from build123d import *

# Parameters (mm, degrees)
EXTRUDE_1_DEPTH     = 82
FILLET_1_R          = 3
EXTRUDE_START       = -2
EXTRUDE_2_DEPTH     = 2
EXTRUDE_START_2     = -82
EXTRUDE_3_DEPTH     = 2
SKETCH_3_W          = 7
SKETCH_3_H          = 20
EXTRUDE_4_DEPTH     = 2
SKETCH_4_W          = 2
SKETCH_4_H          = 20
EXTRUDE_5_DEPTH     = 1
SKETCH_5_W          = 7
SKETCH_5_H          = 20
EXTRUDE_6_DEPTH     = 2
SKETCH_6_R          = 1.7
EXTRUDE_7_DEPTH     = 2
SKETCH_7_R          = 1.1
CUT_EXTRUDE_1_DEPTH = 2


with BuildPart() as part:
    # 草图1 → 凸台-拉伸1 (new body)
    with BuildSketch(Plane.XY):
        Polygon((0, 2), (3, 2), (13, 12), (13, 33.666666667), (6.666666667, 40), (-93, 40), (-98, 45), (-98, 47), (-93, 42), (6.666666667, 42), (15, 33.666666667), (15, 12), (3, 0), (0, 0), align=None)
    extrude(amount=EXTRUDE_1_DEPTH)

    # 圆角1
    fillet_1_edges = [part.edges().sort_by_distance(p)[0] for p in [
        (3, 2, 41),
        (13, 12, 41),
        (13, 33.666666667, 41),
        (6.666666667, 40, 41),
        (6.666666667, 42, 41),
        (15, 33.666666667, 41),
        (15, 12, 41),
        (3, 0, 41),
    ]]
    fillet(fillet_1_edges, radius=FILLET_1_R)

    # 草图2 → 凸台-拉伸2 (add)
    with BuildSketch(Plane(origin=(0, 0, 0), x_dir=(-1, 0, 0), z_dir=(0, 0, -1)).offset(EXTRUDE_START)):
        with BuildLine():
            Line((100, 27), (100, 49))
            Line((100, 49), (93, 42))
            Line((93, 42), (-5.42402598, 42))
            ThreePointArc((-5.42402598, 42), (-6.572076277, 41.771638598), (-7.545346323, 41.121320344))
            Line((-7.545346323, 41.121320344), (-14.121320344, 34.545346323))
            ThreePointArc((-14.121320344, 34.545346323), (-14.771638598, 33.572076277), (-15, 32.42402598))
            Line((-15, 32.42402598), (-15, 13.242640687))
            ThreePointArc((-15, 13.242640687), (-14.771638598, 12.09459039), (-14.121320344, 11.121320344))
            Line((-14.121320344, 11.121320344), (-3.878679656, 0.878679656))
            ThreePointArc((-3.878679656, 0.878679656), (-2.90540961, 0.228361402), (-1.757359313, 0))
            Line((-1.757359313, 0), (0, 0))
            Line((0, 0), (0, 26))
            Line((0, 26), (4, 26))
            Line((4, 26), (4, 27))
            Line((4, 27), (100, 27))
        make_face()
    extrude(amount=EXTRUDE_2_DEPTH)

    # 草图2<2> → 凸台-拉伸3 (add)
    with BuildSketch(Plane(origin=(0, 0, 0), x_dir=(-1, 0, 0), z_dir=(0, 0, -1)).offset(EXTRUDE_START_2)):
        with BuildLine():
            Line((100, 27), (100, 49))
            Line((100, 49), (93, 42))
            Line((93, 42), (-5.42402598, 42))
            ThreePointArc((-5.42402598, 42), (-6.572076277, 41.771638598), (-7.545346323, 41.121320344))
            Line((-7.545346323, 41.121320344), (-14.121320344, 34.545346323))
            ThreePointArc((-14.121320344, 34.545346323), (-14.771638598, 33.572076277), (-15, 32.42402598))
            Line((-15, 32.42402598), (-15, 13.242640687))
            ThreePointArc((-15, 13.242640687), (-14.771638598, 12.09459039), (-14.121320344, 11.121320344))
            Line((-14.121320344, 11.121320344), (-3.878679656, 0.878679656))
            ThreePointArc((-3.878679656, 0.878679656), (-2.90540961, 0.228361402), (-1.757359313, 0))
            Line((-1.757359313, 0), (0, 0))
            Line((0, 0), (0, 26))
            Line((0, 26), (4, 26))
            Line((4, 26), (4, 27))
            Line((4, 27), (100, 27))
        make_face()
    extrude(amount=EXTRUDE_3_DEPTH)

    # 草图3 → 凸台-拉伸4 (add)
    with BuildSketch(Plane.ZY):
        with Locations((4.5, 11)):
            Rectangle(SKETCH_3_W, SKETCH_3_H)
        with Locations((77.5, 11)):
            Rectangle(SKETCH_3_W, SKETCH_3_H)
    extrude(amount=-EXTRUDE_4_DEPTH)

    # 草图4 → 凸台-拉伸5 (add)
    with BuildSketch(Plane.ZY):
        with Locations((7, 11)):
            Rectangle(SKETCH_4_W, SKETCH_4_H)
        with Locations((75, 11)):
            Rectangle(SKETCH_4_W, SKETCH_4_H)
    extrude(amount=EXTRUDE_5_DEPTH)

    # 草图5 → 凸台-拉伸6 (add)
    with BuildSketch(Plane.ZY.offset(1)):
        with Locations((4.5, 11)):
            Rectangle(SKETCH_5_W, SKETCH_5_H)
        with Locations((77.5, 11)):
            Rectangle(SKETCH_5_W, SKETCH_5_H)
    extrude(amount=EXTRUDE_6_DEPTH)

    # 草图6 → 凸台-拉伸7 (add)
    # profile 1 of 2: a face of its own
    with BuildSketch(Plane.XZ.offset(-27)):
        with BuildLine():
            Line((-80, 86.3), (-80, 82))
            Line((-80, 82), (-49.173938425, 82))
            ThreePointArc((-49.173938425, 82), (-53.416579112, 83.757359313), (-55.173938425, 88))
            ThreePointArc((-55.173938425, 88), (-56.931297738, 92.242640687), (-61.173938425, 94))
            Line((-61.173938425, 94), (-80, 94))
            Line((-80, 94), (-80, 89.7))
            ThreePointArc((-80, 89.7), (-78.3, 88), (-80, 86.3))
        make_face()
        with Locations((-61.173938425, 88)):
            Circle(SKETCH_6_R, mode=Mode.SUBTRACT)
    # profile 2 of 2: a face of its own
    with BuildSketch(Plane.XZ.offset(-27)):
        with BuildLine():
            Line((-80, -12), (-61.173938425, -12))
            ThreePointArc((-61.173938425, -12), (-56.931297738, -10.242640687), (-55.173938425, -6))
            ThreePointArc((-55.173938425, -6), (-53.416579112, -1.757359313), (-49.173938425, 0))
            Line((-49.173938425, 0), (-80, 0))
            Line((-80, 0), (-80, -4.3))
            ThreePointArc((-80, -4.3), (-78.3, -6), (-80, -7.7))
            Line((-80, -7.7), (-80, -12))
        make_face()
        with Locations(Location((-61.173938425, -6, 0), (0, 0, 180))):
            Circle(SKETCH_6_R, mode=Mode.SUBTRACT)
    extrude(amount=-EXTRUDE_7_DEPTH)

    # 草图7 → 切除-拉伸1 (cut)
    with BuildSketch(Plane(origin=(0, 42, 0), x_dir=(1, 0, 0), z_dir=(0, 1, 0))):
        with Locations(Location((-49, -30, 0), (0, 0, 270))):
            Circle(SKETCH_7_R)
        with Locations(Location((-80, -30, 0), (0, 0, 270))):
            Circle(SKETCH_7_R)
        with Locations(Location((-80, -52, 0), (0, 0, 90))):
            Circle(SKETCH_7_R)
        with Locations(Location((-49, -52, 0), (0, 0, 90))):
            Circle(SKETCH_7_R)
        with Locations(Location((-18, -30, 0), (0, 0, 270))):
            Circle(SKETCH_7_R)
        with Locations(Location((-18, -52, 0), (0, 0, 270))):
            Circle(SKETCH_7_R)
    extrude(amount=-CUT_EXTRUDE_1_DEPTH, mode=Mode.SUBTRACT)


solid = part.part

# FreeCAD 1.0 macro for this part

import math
import FreeCAD as App
import Part
import Sketcher
from FreeCAD import Vector
Q = App.Units.Quantity


def edges_at(feature, points):
    """Names of the edges that pass closest to the given points."""
    edges = feature.Shape.Edges
    near = lambda p: min(range(len(edges)), key=lambda i: edges[i].distToShape(Part.Vertex(*p))[0])
    return sorted({f"Edge{near(p) + 1}" for p in points})


def add_polygon(sketch, points):
    """Adds a closed chain of lines whose ends are joined by coincident constraints."""
    first, n = sketch.GeometryCount, len(points)
    for a, b in zip(points, points[1:] + points[:1]):
        sketch.addGeometry(Part.LineSegment(App.Vector(*a, 0), App.Vector(*b, 0)), False)
    for i in range(n):
        sketch.addConstraint(Sketcher.Constraint("Coincident", first + i, 2, first + (i + 1) % n, 1))

doc = App.newDocument("Part")
body = doc.addObject("PartDesign::Body", "Body")

# Sketch on XY plane
sketch1 = body.newObject("Sketcher::SketchObject", "Sketch")
sketch1.AttachmentSupport = (doc.getObject("XY_Plane"), [""])
sketch1.MapMode = "FlatFace"
add_polygon(sketch1, [(3, 2), (0, 2), (0, 0), (3, 0), (15, 12), (15, 33.7), (6.7, 42), (-93, 42), (-98, 47), (-98, 45), (-93, 40), (6.7, 40), (13, 33.7), (13, 12)])  # lines 0-13
sketch1.addConstraint([
    Sketcher.Constraint("Horizontal", 0),
    Sketcher.Constraint("Vertical", 1),
    Sketcher.Constraint("Horizontal", 2),
    Sketcher.Constraint("Vertical", 4),
    Sketcher.Constraint("Horizontal", 6),
    Sketcher.Constraint("Vertical", 8),
    Sketcher.Constraint("Horizontal", 10),
    Sketcher.Constraint("Vertical", 12),
    Sketcher.Constraint("Coincident", 1, 2, -1, 1),
    Sketcher.Constraint("Perpendicular", 3, 5),
    Sketcher.Constraint("Parallel", 5, 7),
    Sketcher.Constraint("Parallel", 7, 9),
    Sketcher.Constraint("Parallel", 9, 11),
    Sketcher.Constraint("Perpendicular", 11, 13),
    Sketcher.Constraint("Horizontal", 4, 2, 11, 2),
    Sketcher.Constraint("Horizontal", 3, 2, 12, 2),
    Sketcher.Constraint("Vertical", 6, 2, 9, 2),
    Sketcher.Constraint("Vertical", 5, 2, 10, 2),
    Sketcher.Constraint("Vertical", 2, 2, 13, 2),
    Sketcher.Constraint("Equal", 1, 8),
    Sketcher.Constraint("DistanceX", 0, 2, 0, 1, Q("3 mm")),
    Sketcher.Constraint("DistanceY", 1, 2, 1, 1, Q("2 mm")),
    Sketcher.Constraint("DistanceX", -1, 1, 3, 2, Q("15 mm")),
    Sketcher.Constraint("DistanceY", -1, 1, 5, 2, Q("42 mm")),
    Sketcher.Constraint("DistanceX", 6, 2, -1, 1, Q("93 mm")),
    Sketcher.Constraint("DistanceX", 7, 2, -1, 1, Q("98 mm")),
    Sketcher.Constraint("DistanceX", 6, 2, 6, 1, Q("99.666667 mm")),
])
pad1 = body.newObject("PartDesign::Pad", "Pad")
pad1.Profile = sketch1
pad1.Length = 82
doc.recompute()

fillet = body.newObject("PartDesign::Fillet", "Fillet")
fillet.Base = (pad1, edges_at(pad1, [
    (3, 2, 41),
    (13, 12, 41),
    (13, 33.667, 41),
    (6.667, 40, 41),
    (6.667, 42, 41),
    (15, 33.667, 41),
    (15, 12, 41),
    (3, 0, 41),
]))
fillet.Radius = 3

# Sketch on XY plane
sketch2 = body.newObject("Sketcher::SketchObject", "Sketch001")
sketch2.AttachmentSupport = (doc.getObject("XY_Plane"), [""])
sketch2.MapMode = "FlatFace"
sketch2.AttachmentOffset = App.Placement(Vector(0, 0, 2), App.Rotation())
sketch2.addGeometry([
    Part.LineSegment(Vector(-100, 27, 0), Vector(-100, 49, 0)),  # 0
    Part.LineSegment(Vector(-100, 49, 0), Vector(-93, 42, 0)),  # 1
    Part.LineSegment(Vector(-93, 42, 0), Vector(5.4, 42, 0)),  # 2
    Part.ArcOfCircle(Part.Circle(Vector(5.4, 39, 0), Vector(0, 0, 1), 3), math.radians(45), math.radians(90)),  # 3
    Part.LineSegment(Vector(7.5, 41.1, 0), Vector(14.1, 34.5, 0)),  # 4
    Part.ArcOfCircle(Part.Circle(Vector(12, 32.4, 0), Vector(0, 0, 1), 3), math.radians(0), math.radians(45)),  # 5
    Part.LineSegment(Vector(15, 32.4, 0), Vector(15, 13.2, 0)),  # 6
    Part.ArcOfCircle(Part.Circle(Vector(12, 13.2, 0), Vector(0, 0, 1), 3), math.radians(-45), math.radians(0)),  # 7
    Part.LineSegment(Vector(14.1, 11.1, 0), Vector(3.9, 0.9, 0)),  # 8
    Part.ArcOfCircle(Part.Circle(Vector(1.8, 3, 0), Vector(0, 0, 1), 3), math.radians(-90), math.radians(-45)),  # 9
    Part.LineSegment(Vector(1.8, 0, 0), Vector(0, 0, 0)),  # 10
    Part.LineSegment(Vector(0, 0, 0), Vector(0, 26, 0)),  # 11
    Part.LineSegment(Vector(0, 26, 0), Vector(-4, 26, 0)),  # 12
    Part.LineSegment(Vector(-4, 26, 0), Vector(-4, 27, 0)),  # 13
    Part.LineSegment(Vector(-4, 27, 0), Vector(-100, 27, 0)),  # 14
], False)
sketch2.addConstraint([
    Sketcher.Constraint("Coincident", 0, 2, 1, 1),
    Sketcher.Constraint("Coincident", 1, 2, 2, 1),
    Sketcher.Constraint("Tangent", 2, 2, 3, 2),
    Sketcher.Constraint("Tangent", 3, 1, 4, 1),
    Sketcher.Constraint("Tangent", 4, 2, 5, 2),
    Sketcher.Constraint("Tangent", 5, 1, 6, 1),
    Sketcher.Constraint("Tangent", 6, 2, 7, 2),
    Sketcher.Constraint("Tangent", 7, 1, 8, 1),
    Sketcher.Constraint("Tangent", 8, 2, 9, 2),
    Sketcher.Constraint("Tangent", 9, 1, 10, 1),
    Sketcher.Constraint("Coincident", 10, 2, 11, 1),
    Sketcher.Constraint("Coincident", 11, 2, 12, 1),
    Sketcher.Constraint("Coincident", 12, 2, 13, 1),
    Sketcher.Constraint("Coincident", 13, 2, 14, 1),
    Sketcher.Constraint("Coincident", 14, 2, 0, 1),
    Sketcher.Constraint("Vertical", 0),
    Sketcher.Constraint("Horizontal", 2),
    Sketcher.Constraint("Vertical", 6),
    Sketcher.Constraint("Horizontal", 10),
    Sketcher.Constraint("Vertical", 11),
    Sketcher.Constraint("Horizontal", 12),
    Sketcher.Constraint("Vertical", 13),
    Sketcher.Constraint("Horizontal", 14),
    Sketcher.Constraint("Coincident", 10, 2, -1, 1),
    Sketcher.Constraint("Equal", 3, 5),
    Sketcher.Constraint("Equal", 5, 7),
    Sketcher.Constraint("Equal", 7, 9),
    Sketcher.Constraint("Parallel", 1, 4),
    Sketcher.Constraint("Perpendicular", 4, 8),
    Sketcher.Constraint("Vertical", 4, 2, 7, 1),
    Sketcher.Constraint("Radius", 3, Q("3 mm")),
    Sketcher.Constraint("DistanceX", 12, 2, 12, 1, Q("4 mm")),
    Sketcher.Constraint("DistanceX", 14, 2, 14, 1, Q("96 mm")),
    Sketcher.Constraint("DistanceY", 0, 1, 0, 2, Q("22 mm")),
    Sketcher.Constraint("DistanceY", 11, 1, 11, 2, Q("26 mm")),
    Sketcher.Constraint("DistanceY", 13, 1, 13, 2, Q("1 mm")),
    Sketcher.Constraint("DistanceY", -1, 1, 3, 3, Q("39 mm")),
    Sketcher.Constraint("DistanceX", -1, 1, 5, 3, Q("12 mm")),
    Sketcher.Constraint("DistanceX", 10, 2, 10, 1, Q("1.757359 mm")),
    Sketcher.Constraint("Distance", 4, Q("9.299832 mm")),
])
pad2 = body.newObject("PartDesign::Pad", "Pad001")
pad2.Profile = sketch2
pad2.Length = 2
pad2.Reversed = True

# Sketch on XY plane
sketch3 = body.newObject("Sketcher::SketchObject", "Sketch002")
sketch3.AttachmentSupport = (doc.getObject("XY_Plane"), [""])
sketch3.MapMode = "FlatFace"
sketch3.AttachmentOffset = App.Placement(Vector(0, 0, 82), App.Rotation())
sketch3.addGeometry([
    Part.LineSegment(Vector(-100, 27, 0), Vector(-100, 49, 0)),  # 0
    Part.LineSegment(Vector(-100, 49, 0), Vector(-93, 42, 0)),  # 1
    Part.LineSegment(Vector(-93, 42, 0), Vector(5.4, 42, 0)),  # 2
    Part.ArcOfCircle(Part.Circle(Vector(5.4, 39, 0), Vector(0, 0, 1), 3), math.radians(45), math.radians(90)),  # 3
    Part.LineSegment(Vector(7.5, 41.1, 0), Vector(14.1, 34.5, 0)),  # 4
    Part.ArcOfCircle(Part.Circle(Vector(12, 32.4, 0), Vector(0, 0, 1), 3), math.radians(0), math.radians(45)),  # 5
    Part.LineSegment(Vector(15, 32.4, 0), Vector(15, 13.2, 0)),  # 6
    Part.ArcOfCircle(Part.Circle(Vector(12, 13.2, 0), Vector(0, 0, 1), 3), math.radians(-45), math.radians(0)),  # 7
    Part.LineSegment(Vector(14.1, 11.1, 0), Vector(3.9, 0.9, 0)),  # 8
    Part.ArcOfCircle(Part.Circle(Vector(1.8, 3, 0), Vector(0, 0, 1), 3), math.radians(-90), math.radians(-45)),  # 9
    Part.LineSegment(Vector(1.8, 0, 0), Vector(0, 0, 0)),  # 10
    Part.LineSegment(Vector(0, 0, 0), Vector(0, 26, 0)),  # 11
    Part.LineSegment(Vector(0, 26, 0), Vector(-4, 26, 0)),  # 12
    Part.LineSegment(Vector(-4, 26, 0), Vector(-4, 27, 0)),  # 13
    Part.LineSegment(Vector(-4, 27, 0), Vector(-100, 27, 0)),  # 14
], False)
sketch3.addConstraint([
    Sketcher.Constraint("Coincident", 0, 2, 1, 1),
    Sketcher.Constraint("Coincident", 1, 2, 2, 1),
    Sketcher.Constraint("Tangent", 2, 2, 3, 2),
    Sketcher.Constraint("Tangent", 3, 1, 4, 1),
    Sketcher.Constraint("Tangent", 4, 2, 5, 2),
    Sketcher.Constraint("Tangent", 5, 1, 6, 1),
    Sketcher.Constraint("Tangent", 6, 2, 7, 2),
    Sketcher.Constraint("Tangent", 7, 1, 8, 1),
    Sketcher.Constraint("Tangent", 8, 2, 9, 2),
    Sketcher.Constraint("Tangent", 9, 1, 10, 1),
    Sketcher.Constraint("Coincident", 10, 2, 11, 1),
    Sketcher.Constraint("Coincident", 11, 2, 12, 1),
    Sketcher.Constraint("Coincident", 12, 2, 13, 1),
    Sketcher.Constraint("Coincident", 13, 2, 14, 1),
    Sketcher.Constraint("Coincident", 14, 2, 0, 1),
    Sketcher.Constraint("Vertical", 0),
    Sketcher.Constraint("Horizontal", 2),
    Sketcher.Constraint("Vertical", 6),
    Sketcher.Constraint("Horizontal", 10),
    Sketcher.Constraint("Vertical", 11),
    Sketcher.Constraint("Horizontal", 12),
    Sketcher.Constraint("Vertical", 13),
    Sketcher.Constraint("Horizontal", 14),
    Sketcher.Constraint("Coincident", 10, 2, -1, 1),
    Sketcher.Constraint("Equal", 3, 5),
    Sketcher.Constraint("Equal", 5, 7),
    Sketcher.Constraint("Equal", 7, 9),
    Sketcher.Constraint("Parallel", 1, 4),
    Sketcher.Constraint("Perpendicular", 4, 8),
    Sketcher.Constraint("Vertical", 4, 2, 7, 1),
    Sketcher.Constraint("Radius", 3, Q("3 mm")),
    Sketcher.Constraint("DistanceX", 12, 2, 12, 1, Q("4 mm")),
    Sketcher.Constraint("DistanceX", 14, 2, 14, 1, Q("96 mm")),
    Sketcher.Constraint("DistanceY", 0, 1, 0, 2, Q("22 mm")),
    Sketcher.Constraint("DistanceY", 11, 1, 11, 2, Q("26 mm")),
    Sketcher.Constraint("DistanceY", 13, 1, 13, 2, Q("1 mm")),
    Sketcher.Constraint("DistanceY", -1, 1, 3, 3, Q("39 mm")),
    Sketcher.Constraint("DistanceX", -1, 1, 5, 3, Q("12 mm")),
    Sketcher.Constraint("DistanceX", 10, 2, 10, 1, Q("1.757359 mm")),
    Sketcher.Constraint("Distance", 4, Q("9.299832 mm")),
])
pad3 = body.newObject("PartDesign::Pad", "Pad002")
pad3.Profile = sketch3
pad3.Length = 2
pad3.Reversed = True

# Sketch on YZ plane
sketch4 = body.newObject("Sketcher::SketchObject", "Sketch003")
sketch4.AttachmentSupport = (doc.getObject("YZ_Plane"), [""])
sketch4.MapMode = "FlatFace"
add_polygon(sketch4, [(21, 1), (1, 1), (1, 8), (21, 8)])  # lines 0-3
add_polygon(sketch4, [(21, 74), (1, 74), (1, 81), (21, 81)])  # lines 4-7
sketch4.addConstraint([
    Sketcher.Constraint("Horizontal", 0),
    Sketcher.Constraint("Vertical", 1),
    Sketcher.Constraint("Horizontal", 2),
    Sketcher.Constraint("Vertical", 3),
    Sketcher.Constraint("Horizontal", 4),
    Sketcher.Constraint("Vertical", 5),
    Sketcher.Constraint("Horizontal", 6),
    Sketcher.Constraint("Vertical", 7),
    Sketcher.Constraint("Vertical", 1, 2, 4, 2),
    Sketcher.Constraint("Vertical", 3, 2, 6, 2),
    Sketcher.Constraint("Equal", 3, 5),
    Sketcher.Constraint("DistanceX", 0, 2, 0, 1, Q("20 mm")),
    Sketcher.Constraint("DistanceY", 1, 1, 1, 2, Q("7 mm")),
    Sketcher.Constraint("DistanceX", -1, 1, 0, 2, Q("1 mm")),
    Sketcher.Constraint("DistanceY", -1, 1, 0, 2, Q("1 mm")),
    Sketcher.Constraint("DistanceY", -1, 1, 4, 2, Q("74 mm")),
])
pad4 = body.newObject("PartDesign::Pad", "Pad003")
pad4.Profile = sketch4
pad4.Length = 2

# Sketch on YZ plane
sketch5 = body.newObject("Sketcher::SketchObject", "Sketch004")
sketch5.AttachmentSupport = (doc.getObject("YZ_Plane"), [""])
sketch5.MapMode = "FlatFace"
add_polygon(sketch5, [(21, 6), (1, 6), (1, 8), (21, 8)])  # lines 0-3
add_polygon(sketch5, [(21, 74), (1, 74), (1, 76), (21, 76)])  # lines 4-7
sketch5.addConstraint([
    Sketcher.Constraint("Horizontal", 0),
    Sketcher.Constraint("Vertical", 1),
    Sketcher.Constraint("Horizontal", 2),
    Sketcher.Constraint("Vertical", 3),
    Sketcher.Constraint("Horizontal", 4),
    Sketcher.Constraint("Vertical", 5),
    Sketcher.Constraint("Horizontal", 6),
    Sketcher.Constraint("Vertical", 7),
    Sketcher.Constraint("Vertical", 1, 2, 4, 2),
    Sketcher.Constraint("Vertical", 3, 2, 6, 2),
    Sketcher.Constraint("Equal", 3, 5),
    Sketcher.Constraint("DistanceX", 0, 2, 0, 1, Q("20 mm")),
    Sketcher.Constraint("DistanceY", 1, 1, 1, 2, Q("2 mm")),
    Sketcher.Constraint("DistanceX", -1, 1, 0, 2, Q("1 mm")),
    Sketcher.Constraint("DistanceY", -1, 1, 0, 2, Q("6 mm")),
    Sketcher.Constraint("DistanceY", -1, 1, 4, 2, Q("74 mm")),
])
pad5 = body.newObject("PartDesign::Pad", "Pad004")
pad5.Profile = sketch5
pad5.Length = 1
pad5.Reversed = True

# Sketch on YZ plane
sketch6 = body.newObject("Sketcher::SketchObject", "Sketch005")
sketch6.AttachmentSupport = (doc.getObject("YZ_Plane"), [""])
sketch6.MapMode = "FlatFace"
sketch6.AttachmentOffset = App.Placement(Vector(0, 0, -1), App.Rotation())
add_polygon(sketch6, [(21, 1), (1, 1), (1, 8), (21, 8)])  # lines 0-3
add_polygon(sketch6, [(21, 74), (1, 74), (1, 81), (21, 81)])  # lines 4-7
sketch6.addConstraint([
    Sketcher.Constraint("Horizontal", 0),
    Sketcher.Constraint("Vertical", 1),
    Sketcher.Constraint("Horizontal", 2),
    Sketcher.Constraint("Vertical", 3),
    Sketcher.Constraint("Horizontal", 4),
    Sketcher.Constraint("Vertical", 5),
    Sketcher.Constraint("Horizontal", 6),
    Sketcher.Constraint("Vertical", 7),
    Sketcher.Constraint("Vertical", 1, 2, 4, 2),
    Sketcher.Constraint("Vertical", 3, 2, 6, 2),
    Sketcher.Constraint("Equal", 3, 5),
    Sketcher.Constraint("DistanceX", 0, 2, 0, 1, Q("20 mm")),
    Sketcher.Constraint("DistanceY", 1, 1, 1, 2, Q("7 mm")),
    Sketcher.Constraint("DistanceX", -1, 1, 0, 2, Q("1 mm")),
    Sketcher.Constraint("DistanceY", -1, 1, 0, 2, Q("1 mm")),
    Sketcher.Constraint("DistanceY", -1, 1, 4, 2, Q("74 mm")),
])
pad6 = body.newObject("PartDesign::Pad", "Pad005")
pad6.Profile = sketch6
pad6.Length = 2
pad6.Reversed = True

# Sketch on XZ plane
sketch7 = body.newObject("Sketcher::SketchObject", "Sketch006")
sketch7.AttachmentSupport = (doc.getObject("XZ_Plane"), [""])
sketch7.MapMode = "FlatFace"
sketch7.AttachmentOffset = App.Placement(Vector(0, 0, -27), App.Rotation())
sketch7.addGeometry([
    Part.LineSegment(Vector(-80, 86.3, 0), Vector(-80, 82, 0)),  # 0
    Part.LineSegment(Vector(-80, 82, 0), Vector(-49.2, 82, 0)),  # 1
    Part.ArcOfCircle(Part.Circle(Vector(-49.2, 88, 0), Vector(0, 0, 1), 6), math.radians(180), math.radians(270)),  # 2
    Part.ArcOfCircle(Part.Circle(Vector(-61.2, 88, 0), Vector(0, 0, 1), 6), math.radians(0), math.radians(90)),  # 3
    Part.LineSegment(Vector(-61.2, 94, 0), Vector(-80, 94, 0)),  # 4
    Part.LineSegment(Vector(-80, 94, 0), Vector(-80, 89.7, 0)),  # 5
    Part.ArcOfCircle(Part.Circle(Vector(-80, 88, 0), Vector(0, 0, 1), 1.7), math.radians(-90), math.radians(90)),  # 6
    Part.Circle(Vector(-61.2, 88, 0), Vector(0, 0, 1), 1.7),  # 7
    Part.LineSegment(Vector(-80, -12, 0), Vector(-61.2, -12, 0)),  # 8
    Part.ArcOfCircle(Part.Circle(Vector(-61.2, -6, 0), Vector(0, 0, 1), 6), math.radians(-90), math.radians(0)),  # 9
    Part.ArcOfCircle(Part.Circle(Vector(-49.2, -6, 0), Vector(0, 0, 1), 6), math.radians(90), math.radians(180)),  # 10
    Part.LineSegment(Vector(-49.2, 0, 0), Vector(-80, 0, 0)),  # 11
    Part.LineSegment(Vector(-80, 0, 0), Vector(-80, -4.3, 0)),  # 12
    Part.ArcOfCircle(Part.Circle(Vector(-80, -6, 0), Vector(0, 0, 1), 1.7), math.radians(-90), math.radians(90)),  # 13
    Part.LineSegment(Vector(-80, -7.7, 0), Vector(-80, -12, 0)),  # 14
    Part.Circle(Vector(-61.2, -6, 0), Vector(0, 0, 1), 1.7),  # 15
], False)
sketch7.addConstraint([
    Sketcher.Constraint("Coincident", 0, 2, 1, 1),
    Sketcher.Constraint("Tangent", 1, 2, 2, 2),
    Sketcher.Constraint("Tangent", 2, 1, 3, 1),
    Sketcher.Constraint("Tangent", 3, 2, 4, 1),
    Sketcher.Constraint("Coincident", 4, 2, 5, 1),
    Sketcher.Constraint("Coincident", 5, 2, 6, 2),
    Sketcher.Constraint("Coincident", 6, 1, 0, 1),
    Sketcher.Constraint("Tangent", 8, 2, 9, 1),
    Sketcher.Constraint("Tangent", 9, 2, 10, 2),
    Sketcher.Constraint("Tangent", 10, 1, 11, 1),
    Sketcher.Constraint("Coincident", 11, 2, 12, 1),
    Sketcher.Constraint("Coincident", 12, 2, 13, 2),
    Sketcher.Constraint("Coincident", 13, 1, 14, 1),
    Sketcher.Constraint("Coincident", 14, 2, 8, 1),
    Sketcher.Constraint("Vertical", 0),
    Sketcher.Constraint("Horizontal", 1),
    Sketcher.Constraint("Horizontal", 4),
    Sketcher.Constraint("Vertical", 5),
    Sketcher.Constraint("Horizontal", 8),
    Sketcher.Constraint("Horizontal", 11),
    Sketcher.Constraint("Vertical", 12),
    Sketcher.Constraint("Vertical", 14),
    Sketcher.Constraint("Coincident", 7, 3, 3, 3),
    Sketcher.Constraint("Coincident", 15, 3, 9, 3),
    Sketcher.Constraint("Equal", 2, 3),
    Sketcher.Constraint("Equal", 6, 7),
    Sketcher.Constraint("Equal", 3, 9),
    Sketcher.Constraint("Equal", 9, 10),
    Sketcher.Constraint("Equal", 7, 13),
    Sketcher.Constraint("Equal", 13, 15),
    Sketcher.Constraint("PointOnObject", 10, 1, -1),
    Sketcher.Constraint("Horizontal", 2, 3, 3, 3),
    Sketcher.Constraint("Horizontal", 3, 3, 6, 3),
    Sketcher.Constraint("Horizontal", 9, 3, 10, 3),
    Sketcher.Constraint("Horizontal", 10, 3, 13, 3),
    Sketcher.Constraint("Vertical", 7, 3, 9, 3),
    Sketcher.Constraint("Vertical", 6, 3, 13, 3),
    Sketcher.Constraint("Vertical", 13, 3, 0, 2),
    Sketcher.Constraint("Vertical", 0, 2, 4, 2),
    Sketcher.Constraint("Vertical", 6, 1, 11, 2),
    Sketcher.Constraint("Vertical", 12, 2, 13, 1),
    Sketcher.Constraint("Radius", 2, Q("6 mm")),
    Sketcher.Constraint("Diameter", 7, Q("3.4 mm")),
    Sketcher.Constraint("DistanceY", -1, 1, 2, 3, Q("88 mm")),
    Sketcher.Constraint("DistanceX", 6, 3, -1, 1, Q("80 mm")),
    Sketcher.Constraint("DistanceX", 1, 1, 1, 2, Q("30.826062 mm")),
])
pad7 = body.newObject("PartDesign::Pad", "Pad006")
pad7.Profile = sketch7
pad7.Length = 2
pad7.Reversed = True

# Sketch on XZ plane
sketch8 = body.newObject("Sketcher::SketchObject", "Sketch007")
sketch8.AttachmentSupport = (doc.getObject("XZ_Plane"), [""])
sketch8.MapMode = "FlatFace"
sketch8.AttachmentOffset = App.Placement(Vector(0, 0, -42), App.Rotation())
sketch8.addGeometry([
    Part.Circle(Vector(-49, 30, 0), Vector(0, 0, 1), 1.1),  # 0
    Part.Circle(Vector(-80, 30, 0), Vector(0, 0, 1), 1.1),  # 1
    Part.Circle(Vector(-80, 52, 0), Vector(0, 0, 1), 1.1),  # 2
    Part.Circle(Vector(-49, 52, 0), Vector(0, 0, 1), 1.1),  # 3
    Part.Circle(Vector(-18, 30, 0), Vector(0, 0, 1), 1.1),  # 4
    Part.Circle(Vector(-18, 52, 0), Vector(0, 0, 1), 1.1),  # 5
], False)
sketch8.addConstraint([
    Sketcher.Constraint("Equal", 0, 1),
    Sketcher.Constraint("Equal", 1, 2),
    Sketcher.Constraint("Equal", 2, 3),
    Sketcher.Constraint("Equal", 3, 4),
    Sketcher.Constraint("Equal", 4, 5),
    Sketcher.Constraint("Horizontal", 0, 3, 1, 3),
    Sketcher.Constraint("Horizontal", 2, 3, 3, 3),
    Sketcher.Constraint("Horizontal", 1, 3, 4, 3),
    Sketcher.Constraint("Horizontal", 3, 3, 5, 3),
    Sketcher.Constraint("Vertical", 1, 3, 2, 3),
    Sketcher.Constraint("Vertical", 0, 3, 3, 3),
    Sketcher.Constraint("Vertical", 4, 3, 5, 3),
    Sketcher.Constraint("Diameter", 0, Q("2.2 mm")),
    Sketcher.Constraint("DistanceX", 0, 3, -1, 1, Q("49 mm")),
    Sketcher.Constraint("DistanceY", -1, 1, 0, 3, Q("30 mm")),
    Sketcher.Constraint("DistanceX", 1, 3, -1, 1, Q("80 mm")),
    Sketcher.Constraint("DistanceY", -1, 1, 2, 3, Q("52 mm")),
    Sketcher.Constraint("DistanceX", 4, 3, -1, 1, Q("18 mm")),
])
pocket1 = body.newObject("PartDesign::Pocket", "Pocket")
pocket1.Profile = sketch8
pocket1.Length = 2
pocket1.Reversed = True

doc.recompute()
